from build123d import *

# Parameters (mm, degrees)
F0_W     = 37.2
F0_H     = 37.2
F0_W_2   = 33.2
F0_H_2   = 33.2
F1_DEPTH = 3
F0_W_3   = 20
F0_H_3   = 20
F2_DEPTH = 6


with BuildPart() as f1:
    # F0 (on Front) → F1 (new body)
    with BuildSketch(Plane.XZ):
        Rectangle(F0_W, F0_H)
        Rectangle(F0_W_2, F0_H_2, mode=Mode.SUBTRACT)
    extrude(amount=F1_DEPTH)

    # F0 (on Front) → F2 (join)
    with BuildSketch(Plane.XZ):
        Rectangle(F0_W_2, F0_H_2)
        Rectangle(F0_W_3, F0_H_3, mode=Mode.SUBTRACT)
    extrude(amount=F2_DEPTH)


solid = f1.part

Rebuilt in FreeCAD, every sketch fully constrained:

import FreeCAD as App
import Part
import Sketcher

doc = App.newDocument("Part")
body = doc.addObject("PartDesign::Body", "Body")

# Sketch on XZ plane
sketch1 = body.newObject("Sketcher::SketchObject", "Sketch")
sketch1.AttachmentSupport = (doc.getObject("XZ_Plane"), [""])
sketch1.MapMode = "FlatFace"
sketch1.addGeometry([
    Part.LineSegment(App.Vector(-19, 19, 0), App.Vector(-19, -19, 0)),  # 0
    Part.LineSegment(App.Vector(-19, -19, 0), App.Vector(19, -19, 0)),  # 1
    Part.LineSegment(App.Vector(19, -19, 0), App.Vector(19, 19, 0)),  # 2
    Part.LineSegment(App.Vector(19, 19, 0), App.Vector(-19, 19, 0)),  # 3
    Part.LineSegment(App.Vector(17, -17, 0), App.Vector(-17, -17, 0)),  # 4
    Part.LineSegment(App.Vector(-17, -17, 0), App.Vector(-17, 17, 0)),  # 5
    Part.LineSegment(App.Vector(-17, 17, 0), App.Vector(17, 17, 0)),  # 6
    Part.LineSegment(App.Vector(17, 17, 0), App.Vector(17, -17, 0)),  # 7
], False)
sketch1.addConstraint([
    Sketcher.Constraint("Coincident", 0, 2, 1, 1),
    Sketcher.Constraint("Coincident", 1, 2, 2, 1),
    Sketcher.Constraint("Coincident", 2, 2, 3, 1),
    Sketcher.Constraint("Coincident", 3, 2, 0, 1),
    Sketcher.Constraint("Coincident", 4, 2, 5, 1),
    Sketcher.Constraint("Coincident", 5, 2, 6, 1),
    Sketcher.Constraint("Coincident", 6, 2, 7, 1),
    Sketcher.Constraint("Coincident", 7, 2, 4, 1),
    Sketcher.Constraint("Vertical", 0),
    Sketcher.Constraint("Horizontal", 1),
    Sketcher.Constraint("Vertical", 2),
    Sketcher.Constraint("Horizontal", 3),
    Sketcher.Constraint("Horizontal", 4),
    Sketcher.Constraint("Vertical", 5),
    Sketcher.Constraint("Horizontal", 6),
    Sketcher.Constraint("Vertical", 7),
    Sketcher.Constraint("Symmetric", 0, 2, 2, 2, -1, 1),
    Sketcher.Constraint("Symmetric", 4, 2, 6, 2, -1, 1),
    Sketcher.Constraint("Equal", 3, 0),
    Sketcher.Constraint("Equal", 6, 5),
    Sketcher.Constraint("DistanceX", 1, 1, 1, 2, 37.2),
    Sketcher.Constraint("DistanceX", 4, 2, 4, 1, 33.2),
])
pad1 = body.newObject("PartDesign::Pad", "Pad")
pad1.Profile = sketch1
pad1.Length = 3

# Sketch on XZ plane
sketch2 = body.newObject("Sketcher::SketchObject", "Sketch001")
sketch2.AttachmentSupport = (doc.getObject("XZ_Plane"), [""])
sketch2.MapMode = "FlatFace"
sketch2.addGeometry([
    Part.LineSegment(App.Vector(-17, 17, 0), App.Vector(-17, -17, 0)),  # 0
    Part.LineSegment(App.Vector(-17, -17, 0), App.Vector(17, -17, 0)),  # 1
    Part.LineSegment(App.Vector(17, -17, 0), App.Vector(17, 17, 0)),  # 2
    Part.LineSegment(App.Vector(17, 17, 0), App.Vector(-17, 17, 0)),  # 3
    Part.LineSegment(App.Vector(10, -10, 0), App.Vector(-10, -10, 0)),  # 4
    Part.LineSegment(App.Vector(-10, -10, 0), App.Vector(-10, 10, 0)),  # 5
    Part.LineSegment(App.Vector(-10, 10, 0), App.Vector(10, 10, 0)),  # 6
    Part.LineSegment(App.Vector(10, 10, 0), App.Vector(10, -10, 0)),  # 7
], False)
sketch2.addConstraint([
    Sketcher.Constraint("Coincident", 0, 2, 1, 1),
    Sketcher.Constraint("Coincident", 1, 2, 2, 1),
    Sketcher.Constraint("Coincident", 2, 2, 3, 1),
    Sketcher.Constraint("Coincident", 3, 2, 0, 1),
    Sketcher.Constraint("Coincident", 4, 2, 5, 1),
    Sketcher.Constraint("Coincident", 5, 2, 6, 1),
    Sketcher.Constraint("Coincident", 6, 2, 7, 1),
    Sketcher.Constraint("Coincident", 7, 2, 4, 1),
    Sketcher.Constraint("Vertical", 0),
    Sketcher.Constraint("Horizontal", 1),
    Sketcher.Constraint("Vertical", 2),
    Sketcher.Constraint("Horizontal", 3),
    Sketcher.Constraint("Horizontal", 4),
    Sketcher.Constraint("Vertical", 5),
    Sketcher.Constraint("Horizontal", 6),
    Sketcher.Constraint("Vertical", 7),
    Sketcher.Constraint("Symmetric", 0, 2, 2, 2, -1, 1),
    Sketcher.Constraint("Symmetric", 4, 2, 6, 2, -1, 1),
    Sketcher.Constraint("Equal", 3, 0),
    Sketcher.Constraint("Equal", 6, 5),
    Sketcher.Constraint("DistanceX", 4, 2, 4, 1, 20.0),
    Sketcher.Constraint("DistanceX", 1, 1, 1, 2, 33.2),
])
pad2 = body.newObject("PartDesign::Pad", "Pad001")
pad2.Profile = sketch2
pad2.Length = 6

doc.recompute()
